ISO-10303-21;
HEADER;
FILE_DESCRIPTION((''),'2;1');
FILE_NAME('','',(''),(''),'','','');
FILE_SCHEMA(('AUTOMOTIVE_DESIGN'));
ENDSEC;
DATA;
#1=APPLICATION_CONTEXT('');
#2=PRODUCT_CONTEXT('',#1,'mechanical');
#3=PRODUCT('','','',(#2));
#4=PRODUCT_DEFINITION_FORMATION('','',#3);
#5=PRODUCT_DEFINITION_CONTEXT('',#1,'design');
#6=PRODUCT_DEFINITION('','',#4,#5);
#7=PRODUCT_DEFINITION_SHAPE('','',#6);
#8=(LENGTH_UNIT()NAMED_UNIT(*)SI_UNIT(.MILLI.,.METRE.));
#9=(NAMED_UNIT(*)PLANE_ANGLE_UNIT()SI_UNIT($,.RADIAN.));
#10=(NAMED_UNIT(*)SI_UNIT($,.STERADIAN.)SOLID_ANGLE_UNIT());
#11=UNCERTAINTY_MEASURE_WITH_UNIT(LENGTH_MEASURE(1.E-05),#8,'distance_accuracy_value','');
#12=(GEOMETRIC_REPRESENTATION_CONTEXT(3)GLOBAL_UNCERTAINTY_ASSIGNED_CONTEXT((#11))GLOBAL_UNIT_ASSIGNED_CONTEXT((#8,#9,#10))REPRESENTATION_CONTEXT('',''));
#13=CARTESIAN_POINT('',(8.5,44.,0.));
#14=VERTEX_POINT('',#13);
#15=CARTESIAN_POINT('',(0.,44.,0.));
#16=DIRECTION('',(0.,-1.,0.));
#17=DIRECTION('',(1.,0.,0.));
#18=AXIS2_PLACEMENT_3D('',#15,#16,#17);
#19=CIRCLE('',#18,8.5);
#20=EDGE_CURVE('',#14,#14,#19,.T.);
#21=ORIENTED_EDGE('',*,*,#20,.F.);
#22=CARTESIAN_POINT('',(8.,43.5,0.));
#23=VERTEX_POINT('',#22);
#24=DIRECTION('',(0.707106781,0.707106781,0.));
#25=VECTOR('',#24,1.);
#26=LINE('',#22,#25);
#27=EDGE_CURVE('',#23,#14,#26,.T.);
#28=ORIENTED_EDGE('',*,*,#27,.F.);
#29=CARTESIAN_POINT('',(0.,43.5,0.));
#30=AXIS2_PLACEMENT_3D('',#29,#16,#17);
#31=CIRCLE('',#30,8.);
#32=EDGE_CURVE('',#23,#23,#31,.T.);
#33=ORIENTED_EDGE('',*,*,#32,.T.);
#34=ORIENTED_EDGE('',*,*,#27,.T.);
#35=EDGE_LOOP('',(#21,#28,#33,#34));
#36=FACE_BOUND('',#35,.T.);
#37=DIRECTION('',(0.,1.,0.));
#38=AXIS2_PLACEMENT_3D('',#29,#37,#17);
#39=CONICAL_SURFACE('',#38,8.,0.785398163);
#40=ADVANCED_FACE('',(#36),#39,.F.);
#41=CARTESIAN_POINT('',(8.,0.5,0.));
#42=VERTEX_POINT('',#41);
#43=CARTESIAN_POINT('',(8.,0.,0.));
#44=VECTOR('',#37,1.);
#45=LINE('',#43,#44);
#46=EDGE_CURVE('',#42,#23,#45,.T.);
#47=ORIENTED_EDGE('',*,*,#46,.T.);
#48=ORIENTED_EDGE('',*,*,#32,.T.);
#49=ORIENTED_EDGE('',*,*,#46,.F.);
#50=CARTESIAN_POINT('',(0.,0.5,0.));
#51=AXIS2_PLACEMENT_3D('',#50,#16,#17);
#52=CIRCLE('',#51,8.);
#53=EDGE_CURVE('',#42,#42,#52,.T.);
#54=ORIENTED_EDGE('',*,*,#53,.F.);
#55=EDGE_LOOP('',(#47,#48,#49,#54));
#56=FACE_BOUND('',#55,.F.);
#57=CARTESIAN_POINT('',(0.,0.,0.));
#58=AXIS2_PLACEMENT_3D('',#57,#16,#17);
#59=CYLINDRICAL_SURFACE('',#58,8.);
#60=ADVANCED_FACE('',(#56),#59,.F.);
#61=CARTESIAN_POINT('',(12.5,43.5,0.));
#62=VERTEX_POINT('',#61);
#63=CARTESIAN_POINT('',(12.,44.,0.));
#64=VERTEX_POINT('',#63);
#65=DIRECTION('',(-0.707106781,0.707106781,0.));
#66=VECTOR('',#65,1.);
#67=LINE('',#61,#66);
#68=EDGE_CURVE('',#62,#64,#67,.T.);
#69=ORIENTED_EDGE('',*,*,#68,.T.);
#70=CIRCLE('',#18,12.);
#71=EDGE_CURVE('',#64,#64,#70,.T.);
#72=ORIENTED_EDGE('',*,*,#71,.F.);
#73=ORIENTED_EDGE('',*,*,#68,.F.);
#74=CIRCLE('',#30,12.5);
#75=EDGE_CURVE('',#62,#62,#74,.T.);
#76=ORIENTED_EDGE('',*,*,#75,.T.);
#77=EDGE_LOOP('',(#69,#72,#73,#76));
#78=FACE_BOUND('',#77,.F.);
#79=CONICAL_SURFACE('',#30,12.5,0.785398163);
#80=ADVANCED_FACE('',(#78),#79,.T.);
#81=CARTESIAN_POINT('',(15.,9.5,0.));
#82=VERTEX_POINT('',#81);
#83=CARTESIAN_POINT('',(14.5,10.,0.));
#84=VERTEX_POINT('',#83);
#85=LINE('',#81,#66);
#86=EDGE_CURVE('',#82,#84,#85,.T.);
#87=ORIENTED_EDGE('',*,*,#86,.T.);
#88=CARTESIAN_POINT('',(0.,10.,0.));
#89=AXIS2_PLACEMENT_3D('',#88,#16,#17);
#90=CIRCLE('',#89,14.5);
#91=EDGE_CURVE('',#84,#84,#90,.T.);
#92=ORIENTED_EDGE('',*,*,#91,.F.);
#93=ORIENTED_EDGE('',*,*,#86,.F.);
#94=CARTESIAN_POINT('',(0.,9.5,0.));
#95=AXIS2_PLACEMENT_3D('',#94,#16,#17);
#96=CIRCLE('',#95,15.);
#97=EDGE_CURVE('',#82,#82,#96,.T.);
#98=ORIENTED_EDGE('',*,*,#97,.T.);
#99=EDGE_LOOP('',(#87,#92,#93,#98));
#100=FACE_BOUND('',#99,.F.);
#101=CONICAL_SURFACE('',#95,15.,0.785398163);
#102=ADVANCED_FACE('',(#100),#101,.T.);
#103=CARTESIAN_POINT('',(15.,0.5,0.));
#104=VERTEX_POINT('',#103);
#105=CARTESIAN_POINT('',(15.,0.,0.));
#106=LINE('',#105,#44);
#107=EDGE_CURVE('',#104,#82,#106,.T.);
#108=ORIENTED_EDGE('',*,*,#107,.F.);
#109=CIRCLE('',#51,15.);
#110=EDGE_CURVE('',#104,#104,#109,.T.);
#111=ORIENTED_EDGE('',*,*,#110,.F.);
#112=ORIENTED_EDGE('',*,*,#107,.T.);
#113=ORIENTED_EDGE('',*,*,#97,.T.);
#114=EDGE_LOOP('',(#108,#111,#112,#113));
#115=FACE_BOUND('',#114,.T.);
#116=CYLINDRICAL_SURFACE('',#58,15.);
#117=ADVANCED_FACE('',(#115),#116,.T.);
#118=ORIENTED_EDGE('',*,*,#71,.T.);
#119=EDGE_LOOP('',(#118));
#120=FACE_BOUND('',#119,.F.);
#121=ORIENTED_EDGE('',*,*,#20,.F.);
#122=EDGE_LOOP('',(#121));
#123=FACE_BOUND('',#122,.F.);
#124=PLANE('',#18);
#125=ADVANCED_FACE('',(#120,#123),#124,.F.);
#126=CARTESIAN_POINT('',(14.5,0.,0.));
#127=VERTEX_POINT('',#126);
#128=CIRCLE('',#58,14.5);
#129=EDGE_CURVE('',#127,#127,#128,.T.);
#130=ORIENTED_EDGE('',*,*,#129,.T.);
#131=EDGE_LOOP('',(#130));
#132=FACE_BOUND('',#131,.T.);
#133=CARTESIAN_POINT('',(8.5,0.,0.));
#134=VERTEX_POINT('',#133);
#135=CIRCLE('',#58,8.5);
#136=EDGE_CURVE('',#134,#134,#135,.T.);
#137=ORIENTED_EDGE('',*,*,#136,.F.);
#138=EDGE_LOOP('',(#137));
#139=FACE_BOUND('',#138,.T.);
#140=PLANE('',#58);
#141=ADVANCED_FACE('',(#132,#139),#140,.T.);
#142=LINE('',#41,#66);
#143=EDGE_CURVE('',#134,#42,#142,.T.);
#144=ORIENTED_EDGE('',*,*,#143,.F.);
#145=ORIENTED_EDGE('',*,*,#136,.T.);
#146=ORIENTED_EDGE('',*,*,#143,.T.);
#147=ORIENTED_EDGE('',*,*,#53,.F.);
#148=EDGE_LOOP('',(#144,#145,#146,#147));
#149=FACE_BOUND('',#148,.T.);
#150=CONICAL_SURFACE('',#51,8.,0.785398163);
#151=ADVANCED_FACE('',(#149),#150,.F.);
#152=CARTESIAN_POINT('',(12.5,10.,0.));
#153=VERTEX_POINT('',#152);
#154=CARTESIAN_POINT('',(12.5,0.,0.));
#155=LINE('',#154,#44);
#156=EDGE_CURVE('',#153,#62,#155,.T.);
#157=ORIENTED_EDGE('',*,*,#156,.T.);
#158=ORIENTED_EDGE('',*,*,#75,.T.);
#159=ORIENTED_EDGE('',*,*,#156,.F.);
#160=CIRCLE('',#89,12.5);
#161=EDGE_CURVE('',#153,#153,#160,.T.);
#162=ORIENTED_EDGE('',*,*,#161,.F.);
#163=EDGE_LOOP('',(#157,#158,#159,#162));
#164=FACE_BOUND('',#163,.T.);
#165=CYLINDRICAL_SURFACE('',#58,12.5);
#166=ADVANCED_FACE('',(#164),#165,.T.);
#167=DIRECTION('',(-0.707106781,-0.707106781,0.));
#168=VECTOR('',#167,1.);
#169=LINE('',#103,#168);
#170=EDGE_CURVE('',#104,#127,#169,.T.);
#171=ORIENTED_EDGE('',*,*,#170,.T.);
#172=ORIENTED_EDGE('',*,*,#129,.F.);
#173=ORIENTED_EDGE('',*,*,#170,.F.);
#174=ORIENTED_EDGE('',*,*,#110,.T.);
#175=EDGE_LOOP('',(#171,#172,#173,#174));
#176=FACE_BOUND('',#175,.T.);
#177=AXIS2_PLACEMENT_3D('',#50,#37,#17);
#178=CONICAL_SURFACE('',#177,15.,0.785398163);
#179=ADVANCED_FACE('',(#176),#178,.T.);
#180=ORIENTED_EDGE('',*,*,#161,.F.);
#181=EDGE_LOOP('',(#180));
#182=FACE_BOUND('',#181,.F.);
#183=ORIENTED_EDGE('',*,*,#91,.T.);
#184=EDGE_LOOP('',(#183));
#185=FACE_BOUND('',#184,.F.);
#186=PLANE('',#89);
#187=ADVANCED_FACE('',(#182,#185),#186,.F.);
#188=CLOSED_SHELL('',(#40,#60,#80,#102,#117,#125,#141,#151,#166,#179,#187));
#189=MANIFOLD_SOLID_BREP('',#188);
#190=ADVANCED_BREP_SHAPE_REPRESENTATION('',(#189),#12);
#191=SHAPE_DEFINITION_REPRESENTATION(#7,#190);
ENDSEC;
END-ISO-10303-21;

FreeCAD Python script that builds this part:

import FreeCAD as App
import Part
import Sketcher

V = App.Vector


def edges_at(feature, points):
    """Names of the edges that pass closest to the given points."""
    edges = feature.Shape.Edges
    near = lambda p: min(range(len(edges)), key=lambda i: edges[i].distToShape(Part.Vertex(*p))[0])
    return sorted({f"Edge{near(p) + 1}" for p in points})

doc = App.newDocument("Part")
body = doc.addObject("PartDesign::Body", "Body")

# Sketch on XZ plane
sketch1 = body.newObject("Sketcher::SketchObject", "Sketch")
sketch1.AttachmentSupport = (doc.getObject("XZ_Plane"), [""])
sketch1.MapMode = "FlatFace"
sketch1.addGeometry(Part.Circle(V(0, 0, 0), V(0, 0, 1), 12.5), False)
sketch1.addGeometry(Part.Circle(V(0, 0, 0), V(0, 0, 1), 8), False)
sketch1.addConstraint(Sketcher.Constraint("Coincident", 0, 3, -1, 1))
sketch1.addConstraint(Sketcher.Constraint("Coincident", 1, 3, -1, 1))
sketch1.addConstraint(Sketcher.Constraint("Diameter", 0, 25.0))
sketch1.addConstraint(Sketcher.Constraint("Diameter", 1, 16.0))
pad1 = body.newObject("PartDesign::Pad", "Pad")
pad1.Profile = sketch1
pad1.Length = 44
pad1.Reversed = True

# Sketch on XZ plane
sketch2 = body.newObject("Sketcher::SketchObject", "Sketch001")
sketch2.AttachmentSupport = (doc.getObject("XZ_Plane"), [""])
sketch2.MapMode = "FlatFace"
sketch2.addGeometry(Part.Circle(V(0, 0, 0), V(0, 0, 1), 15), False)
sketch2.addGeometry(Part.Circle(V(0, 0, 0), V(0, 0, 1), 12.5), False)
sketch2.addConstraint(Sketcher.Constraint("Coincident", 0, 3, -1, 1))
sketch2.addConstraint(Sketcher.Constraint("Coincident", 1, 3, -1, 1))
sketch2.addConstraint(Sketcher.Constraint("Diameter", 0, 30.0))
sketch2.addConstraint(Sketcher.Constraint("Diameter", 1, 25.0))
pad2 = body.newObject("PartDesign::Pad", "Pad001")
pad2.Profile = sketch2
pad2.Length = 10
pad2.Reversed = True
doc.recompute()

chamfer = body.newObject("PartDesign::Chamfer", "Chamfer")
chamfer.Base = (pad2, edges_at(pad2, [
    (-8, 0, 0),
    (-15, 0, 0),
    (-15, 10, 0),
    (-12.5, 44, 0),
    (-8, 44, 0),
]))
chamfer.Size = 0.5

doc.recompute()
